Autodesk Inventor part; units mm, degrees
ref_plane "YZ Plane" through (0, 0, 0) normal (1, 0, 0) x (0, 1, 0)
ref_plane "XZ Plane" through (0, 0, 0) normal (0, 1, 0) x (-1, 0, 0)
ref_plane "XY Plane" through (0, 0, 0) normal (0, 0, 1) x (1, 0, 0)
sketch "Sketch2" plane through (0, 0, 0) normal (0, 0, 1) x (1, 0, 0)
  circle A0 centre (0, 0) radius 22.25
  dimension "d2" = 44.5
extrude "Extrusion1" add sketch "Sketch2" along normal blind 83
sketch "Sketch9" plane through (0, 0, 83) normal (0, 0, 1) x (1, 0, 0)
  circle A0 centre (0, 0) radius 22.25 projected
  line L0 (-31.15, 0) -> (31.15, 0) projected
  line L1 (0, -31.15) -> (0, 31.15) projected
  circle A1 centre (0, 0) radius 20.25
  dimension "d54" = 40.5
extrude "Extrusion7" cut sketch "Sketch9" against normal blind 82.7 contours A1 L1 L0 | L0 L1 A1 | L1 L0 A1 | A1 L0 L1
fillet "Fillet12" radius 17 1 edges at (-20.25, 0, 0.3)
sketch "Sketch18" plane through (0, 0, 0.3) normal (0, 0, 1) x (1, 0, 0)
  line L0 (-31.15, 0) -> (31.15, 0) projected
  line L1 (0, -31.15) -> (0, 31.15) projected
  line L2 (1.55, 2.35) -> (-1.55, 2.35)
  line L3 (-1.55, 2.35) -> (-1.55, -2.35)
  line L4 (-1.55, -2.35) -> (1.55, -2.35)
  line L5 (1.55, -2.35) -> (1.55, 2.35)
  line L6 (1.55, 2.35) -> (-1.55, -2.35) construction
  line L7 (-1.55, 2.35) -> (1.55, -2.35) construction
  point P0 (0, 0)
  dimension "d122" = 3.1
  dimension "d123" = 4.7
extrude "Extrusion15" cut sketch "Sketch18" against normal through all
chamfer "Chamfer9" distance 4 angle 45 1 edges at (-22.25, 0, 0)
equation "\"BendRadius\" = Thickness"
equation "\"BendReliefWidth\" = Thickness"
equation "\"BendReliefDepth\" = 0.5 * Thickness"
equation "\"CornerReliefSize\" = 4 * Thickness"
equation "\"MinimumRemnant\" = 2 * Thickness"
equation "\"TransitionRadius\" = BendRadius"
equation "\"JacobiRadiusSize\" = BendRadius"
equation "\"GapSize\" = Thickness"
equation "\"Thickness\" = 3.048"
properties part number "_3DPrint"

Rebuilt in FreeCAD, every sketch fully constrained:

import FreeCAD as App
import Part
import Sketcher
from FreeCAD import Vector
Q = App.Units.Quantity


def edges_at(feature, points):
    """Names of the edges that pass closest to the given points."""
    edges = feature.Shape.Edges
    near = lambda p: min(range(len(edges)), key=lambda i: edges[i].distToShape(Part.Vertex(*p))[0])
    return sorted({f"Edge{near(p) + 1}" for p in points})

doc = App.newDocument("Part")
body = doc.addObject("PartDesign::Body", "Body")

sketch1 = body.newObject("Sketcher::SketchObject", "Sketch")
sketch1.AttachmentSupport = (doc.getObject("XY_Plane"), [""])
sketch1.MapMode = "FlatFace"
sketch1.addGeometry(Part.Circle(Vector(0, 0, 0), Vector(0, 0, 1), 22.25), False)
sketch1.addConstraint([
    Sketcher.Constraint("Coincident", 0, 3, -1, 1),
    Sketcher.Constraint("Diameter", 0, Q("44.5 mm")),
])
pad1 = body.newObject("PartDesign::Pad", "Pad")
pad1.Profile = sketch1
pad1.Length = 83

sketch2 = body.newObject("Sketcher::SketchObject", "Sketch001")
sketch2.AttachmentSupport = (doc.getObject("XY_Plane"), [""])
sketch2.MapMode = "FlatFace"
sketch2.AttachmentOffset = App.Placement(Vector(0, 0, 83), App.Rotation())
sketch2.addGeometry(Part.Circle(Vector(0, 0, 0), Vector(0, 0, 1), 20.25), False)
sketch2.addConstraint([
    Sketcher.Constraint("Coincident", 0, 3, -1, 1),
    Sketcher.Constraint("Diameter", 0, Q("40.5 mm")),
])
pocket1 = body.newObject("PartDesign::Pocket", "Pocket")
pocket1.Profile = sketch2
pocket1.Length = 82.7
doc.recompute()

fillet = body.newObject("PartDesign::Fillet", "Fillet")
fillet.Base = (pocket1, edges_at(pocket1, [(-20.25, 0, 0.3)]))
fillet.Radius = 17

sketch3 = body.newObject("Sketcher::SketchObject", "Sketch002")
sketch3.AttachmentSupport = (doc.getObject("XY_Plane"), [""])
sketch3.MapMode = "FlatFace"
sketch3.AttachmentOffset = App.Placement(Vector(0, 0, 0.3), App.Rotation())
sketch3.addGeometry([
    Part.LineSegment(Vector(-1.55, 2.35, 0), Vector(-1.55, -2.35, 0)),
    Part.LineSegment(Vector(-1.55, -2.35, 0), Vector(1.55, -2.35, 0)),
    Part.LineSegment(Vector(1.55, -2.35, 0), Vector(1.55, 2.35, 0)),
    Part.LineSegment(Vector(1.55, 2.35, 0), Vector(-1.55, 2.35, 0)),
], False)
sketch3.addConstraint([
    Sketcher.Constraint("Coincident", 0, 2, 1, 1),
    Sketcher.Constraint("Coincident", 1, 2, 2, 1),
    Sketcher.Constraint("Coincident", 2, 2, 3, 1),
    Sketcher.Constraint("Coincident", 3, 2, 0, 1),
    Sketcher.Constraint("Vertical", 0),
    Sketcher.Constraint("Horizontal", 1),
    Sketcher.Constraint("Vertical", 2),
    Sketcher.Constraint("Horizontal", 3),
    Sketcher.Constraint("Symmetric", 0, 2, 2, 2, -1, 1),
    Sketcher.Constraint("DistanceX", 1, 1, 1, 2, Q("3.1 mm")),
    Sketcher.Constraint("DistanceY", 0, 2, 0, 1, Q("4.7 mm")),
])
pocket2 = body.newObject("PartDesign::Pocket", "Pocket001")
pocket2.Profile = sketch3
pocket2.Type = "ThroughAll"
doc.recompute()

chamfer = body.newObject("PartDesign::Chamfer", "Chamfer")
chamfer.Base = (pocket2, edges_at(pocket2, [(-22.25, 0, 0)]))
chamfer.Size = 4

doc.recompute()
